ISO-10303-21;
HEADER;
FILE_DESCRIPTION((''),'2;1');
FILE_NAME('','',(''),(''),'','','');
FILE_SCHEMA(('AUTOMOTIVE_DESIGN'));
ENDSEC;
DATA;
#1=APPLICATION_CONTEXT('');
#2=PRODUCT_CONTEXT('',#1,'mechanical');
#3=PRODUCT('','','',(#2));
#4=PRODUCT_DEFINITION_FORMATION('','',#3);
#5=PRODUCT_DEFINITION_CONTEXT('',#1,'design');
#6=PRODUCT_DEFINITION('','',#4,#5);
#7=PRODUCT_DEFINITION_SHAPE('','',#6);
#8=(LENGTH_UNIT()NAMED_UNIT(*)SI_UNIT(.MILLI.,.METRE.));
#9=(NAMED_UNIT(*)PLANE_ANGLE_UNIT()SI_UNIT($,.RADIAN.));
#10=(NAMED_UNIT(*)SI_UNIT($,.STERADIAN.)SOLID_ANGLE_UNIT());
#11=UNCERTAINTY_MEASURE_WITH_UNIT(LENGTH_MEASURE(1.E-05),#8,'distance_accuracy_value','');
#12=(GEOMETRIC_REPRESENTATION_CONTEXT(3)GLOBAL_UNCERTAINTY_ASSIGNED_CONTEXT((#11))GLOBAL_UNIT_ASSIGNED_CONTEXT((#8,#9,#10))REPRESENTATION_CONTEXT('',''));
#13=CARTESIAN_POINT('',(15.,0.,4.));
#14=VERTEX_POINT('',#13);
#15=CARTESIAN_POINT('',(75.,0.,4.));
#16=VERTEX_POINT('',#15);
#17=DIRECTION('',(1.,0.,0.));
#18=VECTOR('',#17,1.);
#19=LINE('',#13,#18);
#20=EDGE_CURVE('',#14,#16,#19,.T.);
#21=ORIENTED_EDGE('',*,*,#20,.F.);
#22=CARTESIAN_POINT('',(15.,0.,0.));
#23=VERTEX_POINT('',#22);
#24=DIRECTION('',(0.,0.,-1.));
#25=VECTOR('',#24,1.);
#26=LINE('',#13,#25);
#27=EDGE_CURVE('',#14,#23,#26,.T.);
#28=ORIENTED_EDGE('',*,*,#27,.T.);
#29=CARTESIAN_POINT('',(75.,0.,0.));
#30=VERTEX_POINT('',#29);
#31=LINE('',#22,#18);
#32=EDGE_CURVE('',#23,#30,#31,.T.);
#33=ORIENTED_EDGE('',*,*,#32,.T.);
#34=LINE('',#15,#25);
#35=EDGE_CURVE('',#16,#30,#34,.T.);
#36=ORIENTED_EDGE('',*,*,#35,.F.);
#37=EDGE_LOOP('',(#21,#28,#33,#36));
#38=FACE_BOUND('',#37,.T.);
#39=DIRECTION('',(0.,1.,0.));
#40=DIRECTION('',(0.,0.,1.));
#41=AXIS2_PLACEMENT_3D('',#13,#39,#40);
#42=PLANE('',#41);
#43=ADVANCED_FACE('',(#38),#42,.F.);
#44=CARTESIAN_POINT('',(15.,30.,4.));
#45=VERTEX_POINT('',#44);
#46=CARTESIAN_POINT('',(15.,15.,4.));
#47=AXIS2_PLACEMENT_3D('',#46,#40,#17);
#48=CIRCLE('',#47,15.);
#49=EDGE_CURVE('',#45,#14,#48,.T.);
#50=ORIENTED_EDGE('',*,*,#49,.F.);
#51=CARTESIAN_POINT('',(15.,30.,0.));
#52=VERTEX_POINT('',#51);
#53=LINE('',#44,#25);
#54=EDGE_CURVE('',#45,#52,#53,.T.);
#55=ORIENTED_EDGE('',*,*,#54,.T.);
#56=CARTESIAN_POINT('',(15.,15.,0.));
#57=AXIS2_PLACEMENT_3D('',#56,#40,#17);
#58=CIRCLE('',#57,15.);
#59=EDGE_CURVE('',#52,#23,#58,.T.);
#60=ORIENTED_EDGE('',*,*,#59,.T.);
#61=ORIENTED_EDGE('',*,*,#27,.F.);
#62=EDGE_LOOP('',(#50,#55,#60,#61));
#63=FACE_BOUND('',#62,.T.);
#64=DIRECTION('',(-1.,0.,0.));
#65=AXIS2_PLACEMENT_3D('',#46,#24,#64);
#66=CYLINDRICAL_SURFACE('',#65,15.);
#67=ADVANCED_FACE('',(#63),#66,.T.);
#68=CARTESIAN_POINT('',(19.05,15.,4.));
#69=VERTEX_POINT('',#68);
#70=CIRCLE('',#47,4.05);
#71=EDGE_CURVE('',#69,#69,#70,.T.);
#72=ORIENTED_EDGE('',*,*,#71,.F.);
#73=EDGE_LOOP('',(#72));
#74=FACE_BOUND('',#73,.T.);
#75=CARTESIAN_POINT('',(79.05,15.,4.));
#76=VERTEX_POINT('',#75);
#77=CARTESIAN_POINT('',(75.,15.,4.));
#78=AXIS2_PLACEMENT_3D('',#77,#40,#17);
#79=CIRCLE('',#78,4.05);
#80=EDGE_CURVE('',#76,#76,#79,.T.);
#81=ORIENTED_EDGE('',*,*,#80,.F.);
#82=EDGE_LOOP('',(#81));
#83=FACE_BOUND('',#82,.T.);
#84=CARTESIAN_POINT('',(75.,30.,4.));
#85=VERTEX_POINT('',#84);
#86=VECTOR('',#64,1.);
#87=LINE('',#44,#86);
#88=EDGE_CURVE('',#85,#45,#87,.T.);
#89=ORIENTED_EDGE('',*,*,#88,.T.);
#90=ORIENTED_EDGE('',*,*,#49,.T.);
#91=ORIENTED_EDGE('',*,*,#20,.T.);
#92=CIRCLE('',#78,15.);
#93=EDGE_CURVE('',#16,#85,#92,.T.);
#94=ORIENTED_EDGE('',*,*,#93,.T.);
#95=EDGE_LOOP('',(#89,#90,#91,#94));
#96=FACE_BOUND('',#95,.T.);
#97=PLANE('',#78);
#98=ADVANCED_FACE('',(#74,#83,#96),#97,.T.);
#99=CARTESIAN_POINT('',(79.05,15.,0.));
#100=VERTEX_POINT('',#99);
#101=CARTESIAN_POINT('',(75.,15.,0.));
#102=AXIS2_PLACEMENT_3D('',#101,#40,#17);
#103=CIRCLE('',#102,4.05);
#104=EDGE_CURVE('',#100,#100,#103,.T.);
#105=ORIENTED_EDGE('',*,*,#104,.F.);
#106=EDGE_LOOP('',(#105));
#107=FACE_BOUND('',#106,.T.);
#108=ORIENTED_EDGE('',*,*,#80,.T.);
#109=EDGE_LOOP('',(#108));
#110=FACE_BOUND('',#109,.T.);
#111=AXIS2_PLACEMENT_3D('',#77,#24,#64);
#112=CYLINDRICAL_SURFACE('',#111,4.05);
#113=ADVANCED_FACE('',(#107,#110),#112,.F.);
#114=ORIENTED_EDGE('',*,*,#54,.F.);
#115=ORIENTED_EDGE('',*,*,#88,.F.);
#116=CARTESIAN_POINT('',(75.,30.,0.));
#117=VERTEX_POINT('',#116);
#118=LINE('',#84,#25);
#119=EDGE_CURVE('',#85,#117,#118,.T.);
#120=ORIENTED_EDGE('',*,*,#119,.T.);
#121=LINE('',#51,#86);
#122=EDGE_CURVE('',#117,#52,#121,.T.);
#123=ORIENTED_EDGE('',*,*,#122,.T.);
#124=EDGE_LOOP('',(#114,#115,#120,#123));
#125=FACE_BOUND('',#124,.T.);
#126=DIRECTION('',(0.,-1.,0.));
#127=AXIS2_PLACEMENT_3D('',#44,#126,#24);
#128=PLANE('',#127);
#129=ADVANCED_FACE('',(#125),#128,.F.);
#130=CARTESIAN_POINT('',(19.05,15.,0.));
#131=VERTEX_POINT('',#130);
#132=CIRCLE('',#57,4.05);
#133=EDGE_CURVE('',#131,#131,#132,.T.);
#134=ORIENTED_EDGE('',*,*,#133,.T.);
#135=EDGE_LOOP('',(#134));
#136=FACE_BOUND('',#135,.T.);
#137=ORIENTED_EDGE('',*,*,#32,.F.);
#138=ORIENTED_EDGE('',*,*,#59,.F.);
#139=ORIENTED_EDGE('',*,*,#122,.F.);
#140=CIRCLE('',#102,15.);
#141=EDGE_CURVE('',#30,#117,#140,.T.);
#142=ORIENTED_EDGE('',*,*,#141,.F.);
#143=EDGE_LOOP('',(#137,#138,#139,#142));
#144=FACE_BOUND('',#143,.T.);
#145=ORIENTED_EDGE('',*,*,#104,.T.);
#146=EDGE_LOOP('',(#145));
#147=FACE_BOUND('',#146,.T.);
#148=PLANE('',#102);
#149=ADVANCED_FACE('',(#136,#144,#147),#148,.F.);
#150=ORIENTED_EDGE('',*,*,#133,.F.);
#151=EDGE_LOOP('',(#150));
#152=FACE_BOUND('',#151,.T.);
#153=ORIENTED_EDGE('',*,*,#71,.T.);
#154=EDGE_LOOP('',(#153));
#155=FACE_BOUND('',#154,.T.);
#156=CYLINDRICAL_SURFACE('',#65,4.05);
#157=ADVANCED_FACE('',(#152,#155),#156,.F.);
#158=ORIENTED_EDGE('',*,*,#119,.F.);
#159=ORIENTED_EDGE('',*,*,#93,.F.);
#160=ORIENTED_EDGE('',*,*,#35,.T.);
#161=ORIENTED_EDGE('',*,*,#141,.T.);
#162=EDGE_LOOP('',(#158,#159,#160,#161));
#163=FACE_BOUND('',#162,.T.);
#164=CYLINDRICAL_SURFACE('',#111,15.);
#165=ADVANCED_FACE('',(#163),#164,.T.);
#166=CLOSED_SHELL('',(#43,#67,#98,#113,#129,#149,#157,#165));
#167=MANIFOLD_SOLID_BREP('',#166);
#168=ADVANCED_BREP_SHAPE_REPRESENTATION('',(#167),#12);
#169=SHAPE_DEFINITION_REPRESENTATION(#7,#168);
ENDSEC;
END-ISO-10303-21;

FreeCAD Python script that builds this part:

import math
import FreeCAD as App
import Part
import Sketcher

V = App.Vector
Q = App.Units.Quantity

doc = App.newDocument("Part")
body = doc.addObject("PartDesign::Body", "Body")

# Sketch on XY plane
sketch1 = body.newObject("Sketcher::SketchObject", "Sketch")
sketch1.AttachmentSupport = (doc.getObject("XY_Plane"), [""])
sketch1.MapMode = "FlatFace"
sketch1.addGeometry(Part.LineSegment(V(15, 0, 0), V(75, 0, 0)), False)
sketch1.addGeometry(Part.ArcOfCircle(Part.Circle(V(75, 15, 0), V(0, 0, 1), 15), math.radians(-90), math.radians(90)), False)
sketch1.addGeometry(Part.LineSegment(V(75, 30, 0), V(15, 30, 0)), False)
sketch1.addGeometry(Part.ArcOfCircle(Part.Circle(V(15, 15, 0), V(0, 0, 1), 15), math.radians(90), math.radians(270)), False)
sketch1.addGeometry(Part.Circle(V(15, 15, 0), V(0, 0, 1), 4.05), False)
sketch1.addGeometry(Part.Circle(V(75, 15, 0), V(0, 0, 1), 4.05), False)
sketch1.addConstraint(Sketcher.Constraint("Tangent", 0, 2, 1, 1))
sketch1.addConstraint(Sketcher.Constraint("Tangent", 1, 2, 2, 1))
sketch1.addConstraint(Sketcher.Constraint("Tangent", 2, 2, 3, 1))
sketch1.addConstraint(Sketcher.Constraint("Tangent", 3, 2, 0, 1))
sketch1.addConstraint(Sketcher.Constraint("Horizontal", 0))
sketch1.addConstraint(Sketcher.Constraint("Horizontal", 2))
sketch1.addConstraint(Sketcher.Constraint("Coincident", 4, 3, 3, 3))
sketch1.addConstraint(Sketcher.Constraint("Coincident", 5, 3, 1, 3))
sketch1.addConstraint(Sketcher.Constraint("Equal", 4, 5))
sketch1.addConstraint(Sketcher.Constraint("PointOnObject", 0, 2, -1))
sketch1.addConstraint(Sketcher.Constraint("Radius", 1, Q("15 mm")))
sketch1.addConstraint(Sketcher.Constraint("Diameter", 4, Q("8.1 mm")))
sketch1.addConstraint(Sketcher.Constraint("DistanceX", 0, 1, 0, 2, Q("60 mm")))
sketch1.addConstraint(Sketcher.Constraint("DistanceX", -1, 1, 1, 3, Q("75 mm")))
pad1 = body.newObject("PartDesign::Pad", "Pad")
pad1.Profile = sketch1
pad1.Length = 4

doc.recompute()
